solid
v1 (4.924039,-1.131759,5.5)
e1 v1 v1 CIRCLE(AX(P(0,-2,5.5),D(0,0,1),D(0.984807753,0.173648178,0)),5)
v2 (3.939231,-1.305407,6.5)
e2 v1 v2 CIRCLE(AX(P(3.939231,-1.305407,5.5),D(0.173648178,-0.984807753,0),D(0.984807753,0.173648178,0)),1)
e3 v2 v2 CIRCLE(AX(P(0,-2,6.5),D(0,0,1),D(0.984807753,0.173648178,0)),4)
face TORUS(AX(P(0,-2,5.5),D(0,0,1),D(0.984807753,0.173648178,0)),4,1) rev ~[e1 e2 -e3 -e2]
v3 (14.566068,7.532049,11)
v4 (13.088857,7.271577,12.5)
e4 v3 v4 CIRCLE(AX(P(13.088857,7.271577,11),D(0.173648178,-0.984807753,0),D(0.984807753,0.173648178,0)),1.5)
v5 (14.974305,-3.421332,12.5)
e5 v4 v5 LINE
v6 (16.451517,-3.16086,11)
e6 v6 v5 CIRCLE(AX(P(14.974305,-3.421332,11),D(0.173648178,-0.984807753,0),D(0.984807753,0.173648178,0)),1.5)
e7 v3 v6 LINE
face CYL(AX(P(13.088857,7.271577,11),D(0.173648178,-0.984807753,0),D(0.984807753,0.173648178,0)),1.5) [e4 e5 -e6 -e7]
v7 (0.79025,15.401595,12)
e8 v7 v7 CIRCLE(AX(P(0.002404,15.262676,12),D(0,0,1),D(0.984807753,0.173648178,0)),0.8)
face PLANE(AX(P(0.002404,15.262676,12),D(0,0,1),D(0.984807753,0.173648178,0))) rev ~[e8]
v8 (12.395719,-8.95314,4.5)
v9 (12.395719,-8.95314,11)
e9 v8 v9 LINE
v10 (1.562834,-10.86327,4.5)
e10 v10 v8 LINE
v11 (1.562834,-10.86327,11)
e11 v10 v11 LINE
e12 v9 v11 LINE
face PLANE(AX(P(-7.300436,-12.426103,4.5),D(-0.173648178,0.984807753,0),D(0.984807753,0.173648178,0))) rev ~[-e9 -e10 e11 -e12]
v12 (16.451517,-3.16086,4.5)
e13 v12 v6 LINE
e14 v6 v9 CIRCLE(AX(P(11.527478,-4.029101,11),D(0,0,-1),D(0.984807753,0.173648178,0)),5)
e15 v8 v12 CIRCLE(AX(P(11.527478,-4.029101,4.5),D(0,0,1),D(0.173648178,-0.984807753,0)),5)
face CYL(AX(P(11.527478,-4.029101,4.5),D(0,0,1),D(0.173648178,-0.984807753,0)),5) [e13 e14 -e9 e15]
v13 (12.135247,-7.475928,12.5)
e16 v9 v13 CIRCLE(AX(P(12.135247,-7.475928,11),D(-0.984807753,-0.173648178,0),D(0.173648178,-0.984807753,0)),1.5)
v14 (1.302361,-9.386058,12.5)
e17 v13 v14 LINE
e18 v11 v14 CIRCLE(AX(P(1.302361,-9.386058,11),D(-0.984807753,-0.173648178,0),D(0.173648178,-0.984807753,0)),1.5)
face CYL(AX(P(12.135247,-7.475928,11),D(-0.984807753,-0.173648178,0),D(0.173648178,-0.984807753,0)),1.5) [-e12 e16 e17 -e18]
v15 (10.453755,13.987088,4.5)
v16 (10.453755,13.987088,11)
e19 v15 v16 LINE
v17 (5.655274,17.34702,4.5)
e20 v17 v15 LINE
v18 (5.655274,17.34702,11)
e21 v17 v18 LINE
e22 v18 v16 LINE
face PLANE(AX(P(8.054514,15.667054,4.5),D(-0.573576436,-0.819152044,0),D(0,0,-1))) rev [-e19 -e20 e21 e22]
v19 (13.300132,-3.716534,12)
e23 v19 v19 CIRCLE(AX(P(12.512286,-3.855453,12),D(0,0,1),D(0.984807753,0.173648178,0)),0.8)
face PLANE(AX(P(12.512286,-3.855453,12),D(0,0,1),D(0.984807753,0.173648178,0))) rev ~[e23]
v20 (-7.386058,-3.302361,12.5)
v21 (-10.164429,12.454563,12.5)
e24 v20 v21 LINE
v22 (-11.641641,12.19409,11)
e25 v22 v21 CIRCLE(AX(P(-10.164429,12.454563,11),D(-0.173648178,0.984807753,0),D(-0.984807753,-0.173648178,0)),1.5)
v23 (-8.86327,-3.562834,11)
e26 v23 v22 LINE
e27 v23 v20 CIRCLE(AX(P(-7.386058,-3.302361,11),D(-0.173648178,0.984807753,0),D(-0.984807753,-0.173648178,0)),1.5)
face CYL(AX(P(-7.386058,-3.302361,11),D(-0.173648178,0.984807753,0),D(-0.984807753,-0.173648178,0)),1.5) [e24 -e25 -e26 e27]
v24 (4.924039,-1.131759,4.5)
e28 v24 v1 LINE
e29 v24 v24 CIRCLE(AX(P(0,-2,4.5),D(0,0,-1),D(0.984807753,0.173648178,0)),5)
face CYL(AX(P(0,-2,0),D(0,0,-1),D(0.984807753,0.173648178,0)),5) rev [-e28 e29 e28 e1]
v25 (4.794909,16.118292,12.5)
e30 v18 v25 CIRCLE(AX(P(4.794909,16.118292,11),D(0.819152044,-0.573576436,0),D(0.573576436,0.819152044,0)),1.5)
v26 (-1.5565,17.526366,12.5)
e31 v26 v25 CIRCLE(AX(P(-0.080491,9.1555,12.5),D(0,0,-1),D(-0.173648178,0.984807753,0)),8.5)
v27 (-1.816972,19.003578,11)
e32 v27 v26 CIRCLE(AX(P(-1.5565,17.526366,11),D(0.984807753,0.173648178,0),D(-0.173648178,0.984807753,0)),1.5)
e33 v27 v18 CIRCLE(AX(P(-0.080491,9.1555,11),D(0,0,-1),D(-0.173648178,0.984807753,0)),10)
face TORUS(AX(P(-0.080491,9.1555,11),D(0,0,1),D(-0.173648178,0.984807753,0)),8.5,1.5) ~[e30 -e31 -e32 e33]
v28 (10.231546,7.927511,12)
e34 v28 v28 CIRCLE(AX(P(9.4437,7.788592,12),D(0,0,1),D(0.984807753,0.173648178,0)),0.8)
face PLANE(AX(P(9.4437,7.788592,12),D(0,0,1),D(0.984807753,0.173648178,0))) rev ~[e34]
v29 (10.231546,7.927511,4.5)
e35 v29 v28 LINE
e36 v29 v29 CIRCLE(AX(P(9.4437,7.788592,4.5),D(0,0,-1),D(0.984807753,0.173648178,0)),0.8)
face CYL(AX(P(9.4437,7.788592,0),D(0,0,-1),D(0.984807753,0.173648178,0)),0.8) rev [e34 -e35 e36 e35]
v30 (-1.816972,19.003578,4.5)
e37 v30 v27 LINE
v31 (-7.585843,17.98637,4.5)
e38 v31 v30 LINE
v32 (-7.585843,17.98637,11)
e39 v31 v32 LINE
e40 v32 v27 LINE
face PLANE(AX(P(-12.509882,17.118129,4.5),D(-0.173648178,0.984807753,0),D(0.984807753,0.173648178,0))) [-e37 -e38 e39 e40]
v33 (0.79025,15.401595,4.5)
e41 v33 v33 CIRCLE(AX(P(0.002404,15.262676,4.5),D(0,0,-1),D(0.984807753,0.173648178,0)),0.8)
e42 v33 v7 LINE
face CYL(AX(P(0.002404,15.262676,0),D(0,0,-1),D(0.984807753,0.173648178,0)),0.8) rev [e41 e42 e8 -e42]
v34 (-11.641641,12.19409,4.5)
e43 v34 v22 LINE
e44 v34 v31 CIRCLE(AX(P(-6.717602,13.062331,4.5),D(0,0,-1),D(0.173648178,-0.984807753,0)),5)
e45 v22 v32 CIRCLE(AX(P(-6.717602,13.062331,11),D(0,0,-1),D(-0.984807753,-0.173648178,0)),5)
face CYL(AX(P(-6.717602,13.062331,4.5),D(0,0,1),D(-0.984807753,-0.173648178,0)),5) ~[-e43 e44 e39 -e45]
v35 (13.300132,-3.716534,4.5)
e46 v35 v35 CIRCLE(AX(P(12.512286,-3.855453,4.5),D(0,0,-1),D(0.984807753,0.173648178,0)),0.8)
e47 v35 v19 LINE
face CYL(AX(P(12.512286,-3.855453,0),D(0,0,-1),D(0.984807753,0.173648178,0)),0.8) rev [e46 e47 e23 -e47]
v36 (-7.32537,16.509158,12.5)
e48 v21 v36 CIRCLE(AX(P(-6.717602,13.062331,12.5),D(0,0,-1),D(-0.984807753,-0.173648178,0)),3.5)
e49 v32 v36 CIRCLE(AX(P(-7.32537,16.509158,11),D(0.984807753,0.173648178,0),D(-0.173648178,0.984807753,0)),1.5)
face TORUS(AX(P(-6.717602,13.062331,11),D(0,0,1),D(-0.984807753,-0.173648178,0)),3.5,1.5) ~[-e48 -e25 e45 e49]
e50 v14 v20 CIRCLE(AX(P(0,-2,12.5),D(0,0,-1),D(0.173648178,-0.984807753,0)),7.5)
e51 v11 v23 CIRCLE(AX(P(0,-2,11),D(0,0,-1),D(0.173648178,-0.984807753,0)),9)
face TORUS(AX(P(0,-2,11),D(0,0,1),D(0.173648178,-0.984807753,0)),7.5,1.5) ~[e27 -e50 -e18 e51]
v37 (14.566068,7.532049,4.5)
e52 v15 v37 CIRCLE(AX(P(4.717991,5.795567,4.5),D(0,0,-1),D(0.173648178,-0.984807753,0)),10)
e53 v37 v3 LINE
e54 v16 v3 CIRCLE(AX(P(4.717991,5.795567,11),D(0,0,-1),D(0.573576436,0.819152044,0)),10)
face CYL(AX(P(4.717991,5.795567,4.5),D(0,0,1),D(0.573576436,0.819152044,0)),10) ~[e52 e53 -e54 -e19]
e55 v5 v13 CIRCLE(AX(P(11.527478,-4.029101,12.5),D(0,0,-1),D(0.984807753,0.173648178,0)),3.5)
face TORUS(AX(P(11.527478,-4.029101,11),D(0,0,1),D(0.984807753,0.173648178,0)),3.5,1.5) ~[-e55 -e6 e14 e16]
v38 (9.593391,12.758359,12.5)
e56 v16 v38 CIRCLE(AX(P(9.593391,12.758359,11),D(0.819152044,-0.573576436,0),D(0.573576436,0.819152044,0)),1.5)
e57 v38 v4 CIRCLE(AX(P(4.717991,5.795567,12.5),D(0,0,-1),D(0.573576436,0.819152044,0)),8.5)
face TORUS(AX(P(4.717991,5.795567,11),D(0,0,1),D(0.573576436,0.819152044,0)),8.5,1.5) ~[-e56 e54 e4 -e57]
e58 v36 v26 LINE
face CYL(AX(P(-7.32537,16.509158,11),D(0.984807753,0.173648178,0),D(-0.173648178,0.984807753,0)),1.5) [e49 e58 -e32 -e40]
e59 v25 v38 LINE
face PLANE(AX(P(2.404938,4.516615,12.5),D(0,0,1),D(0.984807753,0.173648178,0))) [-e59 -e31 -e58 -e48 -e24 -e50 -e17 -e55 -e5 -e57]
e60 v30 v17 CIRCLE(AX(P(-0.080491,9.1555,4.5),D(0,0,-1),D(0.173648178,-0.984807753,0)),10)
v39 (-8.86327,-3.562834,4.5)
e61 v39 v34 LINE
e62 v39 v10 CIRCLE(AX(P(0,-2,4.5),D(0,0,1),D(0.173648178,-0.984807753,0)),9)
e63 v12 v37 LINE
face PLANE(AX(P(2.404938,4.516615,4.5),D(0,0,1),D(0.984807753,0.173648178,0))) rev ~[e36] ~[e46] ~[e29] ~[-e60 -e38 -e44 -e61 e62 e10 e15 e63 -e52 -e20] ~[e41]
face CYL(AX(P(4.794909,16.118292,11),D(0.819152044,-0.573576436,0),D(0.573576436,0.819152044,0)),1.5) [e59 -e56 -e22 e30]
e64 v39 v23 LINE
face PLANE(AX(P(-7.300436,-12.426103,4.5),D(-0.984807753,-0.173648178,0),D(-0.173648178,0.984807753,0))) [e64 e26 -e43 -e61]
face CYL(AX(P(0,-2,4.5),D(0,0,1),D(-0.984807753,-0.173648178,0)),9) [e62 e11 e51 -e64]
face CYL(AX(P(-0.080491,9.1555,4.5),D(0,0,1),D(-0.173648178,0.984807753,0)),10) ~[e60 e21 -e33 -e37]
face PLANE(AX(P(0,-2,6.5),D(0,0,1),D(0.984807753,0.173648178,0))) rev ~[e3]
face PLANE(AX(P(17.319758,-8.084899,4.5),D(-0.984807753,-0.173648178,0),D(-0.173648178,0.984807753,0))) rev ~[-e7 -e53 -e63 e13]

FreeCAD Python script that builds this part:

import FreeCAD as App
import Part
import Sketcher


def edges_at(feature, points):
    """Names of the edges that pass closest to the given points."""
    edges = feature.Shape.Edges
    near = lambda p: min(range(len(edges)), key=lambda i: edges[i].distToShape(Part.Vertex(*p))[0])
    return sorted({f"Edge{near(p) + 1}" for p in points})

doc = App.newDocument("Part")
params = doc.addObject("Spreadsheet::Sheet", "Params")
for row, (alias, value) in enumerate([
    ("sketch1_diameter", "1.6 mm"),
    ("pad1_length", "12 mm"),
    ("sketch2_diameter", "1.6 mm"),
    ("pad2_length", "12 mm"),
    ("sketch3_diameter", "1.6 mm"),
    ("pad3_length", "12 mm"),
    ("sketch4_diameter", "10 mm"),
    ("pad4_length", "6.5 mm"),
    ("fillet_radius", "1 mm"),
    ("sketch5_width", "25 mm"),
    ("sketch5_height", "30 mm"),
    ("pad5_length", "8 mm"),
    ("fillet2_radius", "9 mm"),
    ("fillet3_radius", "5 mm"),
    ("chamfer_size", "10 mm"),
    ("fillet4_radius", "10 mm"),
    ("fillet5_radius", "1.5 mm"),
], start=1):
    params.set(f"A{row}", alias)
    params.set(f"B{row}", "=" + value)
    params.setAlias(f"B{row}", alias)

body = doc.addObject("PartDesign::Body", "Body")

# Sketch on XY plane
sketch1 = body.newObject("Sketcher::SketchObject", "Sketch")
sketch1.AttachmentSupport = (doc.getObject("XY_Plane"), [""])
sketch1.MapMode = "FlatFace"
sketch1.addGeometry(Part.Circle(App.Vector(3, 17, 0), App.Vector(0, 0, 1), 0.8), False)
sketch1.addConstraint([
    Sketcher.Constraint("Diameter", 0, 1.6),
    Sketcher.Constraint("DistanceX", -1, 1, 0, 3, 3.0),
    Sketcher.Constraint("DistanceY", -1, 1, 0, 3, 17.0),
])
sketch1.setExpression("Constraints[0]", "Params.sketch1_diameter")
pad1 = body.newObject("PartDesign::Pad", "Pad")
pad1.Profile = sketch1
pad1.setExpression("Length", "Params.pad1_length")
body2 = doc.addObject("PartDesign::Body", "Body001")

# Sketch on XY plane
sketch2 = body2.newObject("Sketcher::SketchObject", "Sketch001")
sketch2.AttachmentSupport = (doc.getObject("XY_Plane001"), [""])
sketch2.MapMode = "FlatFace"
sketch2.addGeometry(Part.Circle(App.Vector(11, 8, 0), App.Vector(0, 0, 1), 0.8), False)
sketch2.addConstraint([
    Sketcher.Constraint("Diameter", 0, 1.6),
    Sketcher.Constraint("DistanceX", -1, 1, 0, 3, 11.0),
    Sketcher.Constraint("DistanceY", -1, 1, 0, 3, 8.0),
])
sketch2.setExpression("Constraints[0]", "Params.sketch2_diameter")
pad2 = body2.newObject("PartDesign::Pad", "Pad001")
pad2.Profile = sketch2
pad2.setExpression("Length", "Params.pad2_length")
body3 = doc.addObject("PartDesign::Body", "Body002")

# Sketch on XY plane
sketch3 = body3.newObject("Sketcher::SketchObject", "Sketch002")
sketch3.AttachmentSupport = (doc.getObject("XY_Plane002"), [""])
sketch3.MapMode = "FlatFace"
sketch3.addGeometry(Part.Circle(App.Vector(12, -4, 0), App.Vector(0, 0, 1), 0.8), False)
sketch3.addConstraint([
    Sketcher.Constraint("Diameter", 0, 1.6),
    Sketcher.Constraint("DistanceX", -1, 1, 0, 3, 12.0),
    Sketcher.Constraint("DistanceY", 0, 3, -1, 1, 4.0),
])
sketch3.setExpression("Constraints[0]", "Params.sketch3_diameter")
pad3 = body3.newObject("PartDesign::Pad", "Pad002")
pad3.Profile = sketch3
pad3.setExpression("Length", "Params.pad3_length")
body4 = doc.addObject("PartDesign::Body", "Body003")
body4.AllowCompound = True

# Sketch on XY plane
sketch4 = body4.newObject("Sketcher::SketchObject", "Sketch003")
sketch4.AttachmentSupport = (doc.getObject("XY_Plane003"), [""])
sketch4.MapMode = "FlatFace"
sketch4.addGeometry(Part.Circle(App.Vector(0, 0, 0), App.Vector(0, 0, 1), 5), False)
sketch4.addConstraint([
    Sketcher.Constraint("Coincident", 0, 3, -1, 1),
    Sketcher.Constraint("Diameter", 0, 10.0),
])
sketch4.setExpression("Constraints[1]", "Params.sketch4_diameter")
pad4 = body4.newObject("PartDesign::Pad", "Pad003")
pad4.Profile = sketch4
pad4.setExpression("Length", "Params.pad4_length")
doc.recompute()

fillet = body4.newObject("PartDesign::Fillet", "Fillet")
fillet.Base = (pad4, edges_at(pad4, [(-5, 0, 6.5)]))
fillet.setExpression("Radius", "Params.fillet_radius")
doc.recompute()

boolean = body4.newObject("PartDesign::Boolean", "Boolean")
boolean.Type = "Fuse"
boolean.addObjects([body])
doc.recompute()

boolean2 = body4.newObject("PartDesign::Boolean", "Boolean001")
boolean2.Type = "Fuse"
boolean2.addObjects([body2])
doc.recompute()

boolean3 = body4.newObject("PartDesign::Boolean", "Boolean002")
boolean3.Type = "Fuse"
boolean3.addObjects([body3])
body5 = doc.addObject("PartDesign::Body", "Body004")

# Sketch on XY plane
sketch5 = body5.newObject("Sketcher::SketchObject", "Sketch004")
sketch5.AttachmentSupport = (doc.getObject("XY_Plane004"), [""])
sketch5.MapMode = "FlatFace"
sketch5.AttachmentOffset = App.Placement(App.Vector(0, 0, 4.5), App.Rotation())
sketch5.addGeometry([
    Part.LineSegment(App.Vector(-9, 21, 0), App.Vector(-9, -9, 0)),
    Part.LineSegment(App.Vector(-9, -9, 0), App.Vector(16, -9, 0)),
    Part.LineSegment(App.Vector(16, -9, 0), App.Vector(16, 21, 0)),
    Part.LineSegment(App.Vector(16, 21, 0), App.Vector(-9, 21, 0)),
], False)
sketch5.addConstraint([
    Sketcher.Constraint("Coincident", 0, 2, 1, 1),
    Sketcher.Constraint("Coincident", 1, 2, 2, 1),
    Sketcher.Constraint("Coincident", 2, 2, 3, 1),
    Sketcher.Constraint("Coincident", 3, 2, 0, 1),
    Sketcher.Constraint("Vertical", 0),
    Sketcher.Constraint("Horizontal", 1),
    Sketcher.Constraint("Vertical", 2),
    Sketcher.Constraint("Horizontal", 3),
    Sketcher.Constraint("DistanceX", 1, 1, 1, 2, 25.0),
    Sketcher.Constraint("DistanceY", 0, 2, 0, 1, 30.0),
    Sketcher.Constraint("DistanceX", 0, 2, -1, 1, 9.0),
    Sketcher.Constraint("DistanceY", 0, 2, -1, 1, 9.0),
])
sketch5.setExpression("Constraints[8]", "Params.sketch5_width")
sketch5.setExpression("Constraints[9]", "Params.sketch5_height")
pad5 = body5.newObject("PartDesign::Pad", "Pad004")
pad5.Profile = sketch5
pad5.setExpression("Length", "Params.pad5_length")
doc.recompute()

fillet2 = body5.newObject("PartDesign::Fillet", "Fillet001")
fillet2.Base = (pad5, edges_at(pad5, [(-9, -9, 8.5)]))
fillet2.setExpression("Radius", "Params.fillet2_radius")
doc.recompute()

fillet3 = body5.newObject("PartDesign::Fillet", "Fillet002")
fillet3.Base = (fillet2, edges_at(fillet2, [(-9, 21, 8.5), (16, -9, 8.5)]))
fillet3.setExpression("Radius", "Params.fillet3_radius")
doc.recompute()

chamfer = body5.newObject("PartDesign::Chamfer", "Chamfer")
chamfer.Base = (fillet3, edges_at(fillet3, [(16, 21, 8.5)]))
chamfer.setExpression("Size", "Params.chamfer_size")
doc.recompute()

fillet4 = body5.newObject("PartDesign::Fillet", "Fillet003")
fillet4.Base = (chamfer, edges_at(chamfer, [(6, 21, 8.5), (16, 11, 8.5)]))
fillet4.setExpression("Radius", "Params.fillet4_radius")
doc.recompute()

fillet5 = body5.newObject("PartDesign::Fillet", "Fillet004")
fillet5.Base = (fillet4, edges_at(fillet4, [(11, 16, 12.5)]))
fillet5.setExpression("Radius", "Params.fillet5_radius")
doc.recompute()

boolean4 = body5.newObject("PartDesign::Boolean", "Boolean003")
boolean4.Type = "Cut"
boolean4.addObjects([body4])
body6 = doc.addObject("PartDesign::Body", "Body005")
doc.recompute()

body5.Placement = App.Placement(App.Vector(0, -2, 0), App.Rotation(App.Vector(0, 0, 1), 10))
boolean5 = body6.newObject("PartDesign::Boolean", "Boolean004")
boolean5.Type = "Fuse"
boolean5.addObjects([body5])

doc.recompute()
